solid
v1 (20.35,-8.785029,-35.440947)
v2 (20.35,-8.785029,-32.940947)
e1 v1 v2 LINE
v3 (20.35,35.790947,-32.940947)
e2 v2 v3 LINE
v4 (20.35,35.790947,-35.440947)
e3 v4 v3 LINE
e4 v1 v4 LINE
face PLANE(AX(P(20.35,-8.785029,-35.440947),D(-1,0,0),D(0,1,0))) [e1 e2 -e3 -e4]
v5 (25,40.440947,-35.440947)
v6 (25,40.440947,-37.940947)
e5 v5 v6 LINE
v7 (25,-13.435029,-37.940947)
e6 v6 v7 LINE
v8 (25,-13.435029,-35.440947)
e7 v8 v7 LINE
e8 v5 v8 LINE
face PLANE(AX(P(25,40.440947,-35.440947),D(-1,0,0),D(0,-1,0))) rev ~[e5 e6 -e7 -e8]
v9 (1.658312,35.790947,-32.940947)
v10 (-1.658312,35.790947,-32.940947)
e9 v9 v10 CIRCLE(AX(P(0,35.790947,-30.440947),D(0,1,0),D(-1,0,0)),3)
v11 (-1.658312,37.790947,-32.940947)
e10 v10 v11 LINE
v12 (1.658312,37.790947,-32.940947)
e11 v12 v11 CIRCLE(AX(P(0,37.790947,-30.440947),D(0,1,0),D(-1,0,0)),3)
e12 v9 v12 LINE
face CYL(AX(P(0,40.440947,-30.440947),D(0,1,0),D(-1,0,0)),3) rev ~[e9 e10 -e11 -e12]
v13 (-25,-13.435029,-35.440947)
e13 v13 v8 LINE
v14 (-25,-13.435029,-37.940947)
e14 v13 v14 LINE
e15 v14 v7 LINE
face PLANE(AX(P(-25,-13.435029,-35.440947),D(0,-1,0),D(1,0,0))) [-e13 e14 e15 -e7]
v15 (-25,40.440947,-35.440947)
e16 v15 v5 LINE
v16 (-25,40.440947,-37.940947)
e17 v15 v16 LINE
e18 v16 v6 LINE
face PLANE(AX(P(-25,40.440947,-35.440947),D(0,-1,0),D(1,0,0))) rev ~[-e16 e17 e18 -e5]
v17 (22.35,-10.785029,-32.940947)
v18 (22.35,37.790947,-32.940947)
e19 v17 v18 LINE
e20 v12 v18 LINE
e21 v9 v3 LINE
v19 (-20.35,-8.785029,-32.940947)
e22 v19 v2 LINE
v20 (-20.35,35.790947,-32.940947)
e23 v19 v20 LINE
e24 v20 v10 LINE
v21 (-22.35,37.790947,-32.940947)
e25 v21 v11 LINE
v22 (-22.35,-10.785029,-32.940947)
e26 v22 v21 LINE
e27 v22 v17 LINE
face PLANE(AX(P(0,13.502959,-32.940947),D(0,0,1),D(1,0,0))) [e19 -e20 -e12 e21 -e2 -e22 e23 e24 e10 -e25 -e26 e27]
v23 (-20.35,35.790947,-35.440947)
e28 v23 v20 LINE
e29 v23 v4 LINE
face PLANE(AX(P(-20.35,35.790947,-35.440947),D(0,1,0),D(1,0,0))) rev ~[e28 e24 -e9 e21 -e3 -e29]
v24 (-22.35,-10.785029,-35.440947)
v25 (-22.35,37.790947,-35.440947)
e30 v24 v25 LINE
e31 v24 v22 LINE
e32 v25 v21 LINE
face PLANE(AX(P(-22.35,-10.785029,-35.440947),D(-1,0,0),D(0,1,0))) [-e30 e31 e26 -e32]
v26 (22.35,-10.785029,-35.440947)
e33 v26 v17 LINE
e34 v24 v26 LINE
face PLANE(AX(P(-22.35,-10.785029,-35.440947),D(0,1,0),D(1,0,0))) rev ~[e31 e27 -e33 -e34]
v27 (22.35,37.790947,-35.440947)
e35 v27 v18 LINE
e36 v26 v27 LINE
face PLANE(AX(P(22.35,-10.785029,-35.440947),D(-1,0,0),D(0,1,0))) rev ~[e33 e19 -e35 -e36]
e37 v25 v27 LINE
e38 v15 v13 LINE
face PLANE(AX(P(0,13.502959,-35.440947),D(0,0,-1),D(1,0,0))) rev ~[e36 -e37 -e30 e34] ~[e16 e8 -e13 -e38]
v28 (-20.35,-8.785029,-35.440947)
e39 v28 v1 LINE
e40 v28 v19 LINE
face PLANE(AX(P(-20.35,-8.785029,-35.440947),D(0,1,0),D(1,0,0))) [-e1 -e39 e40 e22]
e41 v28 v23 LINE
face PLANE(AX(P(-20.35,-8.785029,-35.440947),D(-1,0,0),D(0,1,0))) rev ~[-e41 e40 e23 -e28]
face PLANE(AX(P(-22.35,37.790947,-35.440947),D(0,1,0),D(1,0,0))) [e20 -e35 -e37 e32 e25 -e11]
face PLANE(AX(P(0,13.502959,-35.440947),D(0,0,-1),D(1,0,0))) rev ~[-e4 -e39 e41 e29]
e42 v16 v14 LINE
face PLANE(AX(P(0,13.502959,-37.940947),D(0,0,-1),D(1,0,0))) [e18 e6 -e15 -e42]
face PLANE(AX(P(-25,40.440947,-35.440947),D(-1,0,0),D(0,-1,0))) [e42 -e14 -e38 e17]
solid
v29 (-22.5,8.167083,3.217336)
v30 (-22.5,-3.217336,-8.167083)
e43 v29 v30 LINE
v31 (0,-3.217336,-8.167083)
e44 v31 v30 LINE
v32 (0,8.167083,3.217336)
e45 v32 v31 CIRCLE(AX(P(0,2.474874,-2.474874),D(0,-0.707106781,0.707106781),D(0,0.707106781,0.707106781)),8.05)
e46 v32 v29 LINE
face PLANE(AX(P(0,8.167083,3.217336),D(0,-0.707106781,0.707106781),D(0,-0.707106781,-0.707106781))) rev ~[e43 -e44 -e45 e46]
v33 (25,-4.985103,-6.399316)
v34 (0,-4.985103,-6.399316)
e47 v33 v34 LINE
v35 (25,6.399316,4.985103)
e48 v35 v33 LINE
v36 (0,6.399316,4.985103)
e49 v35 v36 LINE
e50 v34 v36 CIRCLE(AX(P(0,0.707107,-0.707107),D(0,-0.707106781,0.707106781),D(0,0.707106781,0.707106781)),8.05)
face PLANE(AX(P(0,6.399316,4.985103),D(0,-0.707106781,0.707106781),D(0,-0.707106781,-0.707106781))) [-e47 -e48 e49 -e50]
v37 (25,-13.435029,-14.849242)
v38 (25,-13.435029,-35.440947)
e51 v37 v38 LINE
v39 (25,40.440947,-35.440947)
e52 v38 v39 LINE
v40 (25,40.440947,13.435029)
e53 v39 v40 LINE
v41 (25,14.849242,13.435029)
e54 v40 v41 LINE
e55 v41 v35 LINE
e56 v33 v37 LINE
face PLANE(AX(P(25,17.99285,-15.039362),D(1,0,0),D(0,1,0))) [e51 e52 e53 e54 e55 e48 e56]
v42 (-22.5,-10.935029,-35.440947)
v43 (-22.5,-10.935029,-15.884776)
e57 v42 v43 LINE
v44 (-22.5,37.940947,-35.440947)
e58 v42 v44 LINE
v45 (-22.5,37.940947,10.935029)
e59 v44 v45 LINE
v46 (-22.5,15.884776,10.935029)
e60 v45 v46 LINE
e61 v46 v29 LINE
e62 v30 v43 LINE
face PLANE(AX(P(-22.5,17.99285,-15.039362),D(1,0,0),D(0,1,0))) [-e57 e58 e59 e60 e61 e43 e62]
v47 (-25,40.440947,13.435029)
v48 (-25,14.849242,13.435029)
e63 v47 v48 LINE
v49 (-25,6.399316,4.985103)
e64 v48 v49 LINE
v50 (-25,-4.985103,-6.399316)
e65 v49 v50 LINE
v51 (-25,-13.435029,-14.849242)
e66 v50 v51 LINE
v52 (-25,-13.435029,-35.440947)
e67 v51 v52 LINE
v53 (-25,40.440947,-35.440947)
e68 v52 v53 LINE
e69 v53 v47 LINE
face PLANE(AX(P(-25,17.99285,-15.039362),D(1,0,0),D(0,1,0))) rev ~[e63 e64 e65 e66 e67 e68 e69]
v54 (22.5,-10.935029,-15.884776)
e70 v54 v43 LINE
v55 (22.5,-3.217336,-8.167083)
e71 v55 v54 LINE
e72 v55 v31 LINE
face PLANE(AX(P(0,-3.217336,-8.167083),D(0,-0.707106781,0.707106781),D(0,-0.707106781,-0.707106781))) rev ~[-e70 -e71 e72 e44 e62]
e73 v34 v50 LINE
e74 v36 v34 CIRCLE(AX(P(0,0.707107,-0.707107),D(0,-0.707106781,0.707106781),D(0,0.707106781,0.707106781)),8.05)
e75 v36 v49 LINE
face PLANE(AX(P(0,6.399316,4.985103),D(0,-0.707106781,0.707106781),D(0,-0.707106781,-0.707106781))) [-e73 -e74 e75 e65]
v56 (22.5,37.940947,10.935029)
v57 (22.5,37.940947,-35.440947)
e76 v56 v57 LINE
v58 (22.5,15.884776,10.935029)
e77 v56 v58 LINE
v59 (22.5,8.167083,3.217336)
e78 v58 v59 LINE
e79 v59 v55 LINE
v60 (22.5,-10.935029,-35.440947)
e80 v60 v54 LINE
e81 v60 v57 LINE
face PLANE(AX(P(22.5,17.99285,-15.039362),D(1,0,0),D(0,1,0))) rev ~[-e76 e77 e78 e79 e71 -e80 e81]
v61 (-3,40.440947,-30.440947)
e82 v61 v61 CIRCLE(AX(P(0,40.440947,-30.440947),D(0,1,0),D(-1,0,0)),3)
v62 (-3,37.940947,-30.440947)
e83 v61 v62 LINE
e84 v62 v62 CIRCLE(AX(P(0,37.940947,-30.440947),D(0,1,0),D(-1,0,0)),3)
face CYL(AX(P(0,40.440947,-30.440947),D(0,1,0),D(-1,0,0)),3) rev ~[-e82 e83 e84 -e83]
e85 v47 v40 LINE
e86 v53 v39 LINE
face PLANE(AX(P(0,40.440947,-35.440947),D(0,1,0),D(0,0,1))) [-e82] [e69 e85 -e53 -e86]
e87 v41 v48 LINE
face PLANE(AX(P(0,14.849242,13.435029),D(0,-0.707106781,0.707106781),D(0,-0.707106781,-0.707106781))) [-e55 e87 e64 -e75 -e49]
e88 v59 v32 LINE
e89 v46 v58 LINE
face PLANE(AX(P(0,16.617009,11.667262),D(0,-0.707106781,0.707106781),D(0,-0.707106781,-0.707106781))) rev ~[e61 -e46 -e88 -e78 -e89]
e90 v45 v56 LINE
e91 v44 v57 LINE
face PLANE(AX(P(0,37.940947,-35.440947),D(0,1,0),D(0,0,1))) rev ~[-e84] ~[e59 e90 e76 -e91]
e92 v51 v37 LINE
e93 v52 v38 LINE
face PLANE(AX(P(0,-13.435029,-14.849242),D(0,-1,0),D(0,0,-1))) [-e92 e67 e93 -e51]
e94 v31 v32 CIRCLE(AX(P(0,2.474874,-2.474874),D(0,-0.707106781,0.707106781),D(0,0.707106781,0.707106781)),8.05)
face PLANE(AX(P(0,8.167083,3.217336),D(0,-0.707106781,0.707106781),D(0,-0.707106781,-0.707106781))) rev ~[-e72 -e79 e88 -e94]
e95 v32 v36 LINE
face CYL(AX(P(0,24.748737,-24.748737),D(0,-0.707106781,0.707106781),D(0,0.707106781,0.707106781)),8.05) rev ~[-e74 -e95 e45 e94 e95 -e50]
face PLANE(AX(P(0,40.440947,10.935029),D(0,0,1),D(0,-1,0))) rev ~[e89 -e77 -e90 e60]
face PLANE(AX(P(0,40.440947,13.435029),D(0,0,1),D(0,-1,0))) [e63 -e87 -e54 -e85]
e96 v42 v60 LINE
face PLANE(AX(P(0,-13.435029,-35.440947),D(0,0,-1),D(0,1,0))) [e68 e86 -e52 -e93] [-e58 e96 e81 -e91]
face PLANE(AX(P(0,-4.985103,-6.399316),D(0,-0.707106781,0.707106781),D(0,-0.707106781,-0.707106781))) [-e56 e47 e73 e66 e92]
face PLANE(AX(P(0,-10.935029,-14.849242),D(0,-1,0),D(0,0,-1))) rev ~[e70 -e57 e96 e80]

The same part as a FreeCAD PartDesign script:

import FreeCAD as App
import Part
import Sketcher

V = App.Vector
Q = App.Units.Quantity


def faces_at(feature, points):
    """Names of the faces that lie closest to the given points."""
    faces = feature.Shape.Faces
    near = lambda p: min(range(len(faces)), key=lambda i: faces[i].distToShape(Part.Vertex(*p))[0])
    return sorted({f"Face{near(p) + 1}" for p in points})


def add_polygon(sketch, points):
    """Adds a closed chain of lines whose ends are joined by coincident constraints."""
    first, n = sketch.GeometryCount, len(points)
    for a, b in zip(points, points[1:] + points[:1]):
        sketch.addGeometry(Part.LineSegment(App.Vector(*a, 0), App.Vector(*b, 0)), False)
    for i in range(n):
        sketch.addConstraint(Sketcher.Constraint("Coincident", first + i, 2, first + (i + 1) % n, 1))

doc = App.newDocument("Part")
params = doc.addObject("Spreadsheet::Sheet", "Params")
for row, (alias, value) in enumerate([
    ("sketch1_length", "35 mm"),
    ("sketch1_length2", "8.05 mm"),
    ("revolution_angle", "360 deg"),
    ("sketch2_length", "16.1 mm"),
    ("sketch2_length2", "11.95 mm"),
    ("pad1_length", "50 mm"),
    ("thickness_wall", "2.5 mm"),
    ("sketch3_width", "50 mm"),
    ("pad2_length", "2.5 mm"),
    ("sketch4_width", "44.7 mm"),
    ("sketch4_width2", "40.7 mm"),
    ("pad3_length", "2.5 mm"),
    ("sketch5_diameter", "6 mm"),
    ("pad4_length", "25 mm"),
], start=1):
    params.set(f"A{row}", alias)
    params.set(f"B{row}", "=" + value)
    params.setAlias(f"B{row}", alias)

body = doc.addObject("PartDesign::Body", "Body")

sketch1 = body.newObject("Sketcher::SketchObject", "Sketch")
sketch1.AttachmentSupport = (doc.getObject("YZ_Plane"), [""])
sketch1.MapMode = "FlatFace"
add_polygon(sketch1, [(5.69221, 5.69221), (0, 0), (24.748737, -24.748737), (30.440947, -19.056528)])
sketch1.addGeometry(Part.LineSegment(V(24.748737, -24.748737, 0), V(0, 0, 0)), True)
sketch1.addConstraint([
    Sketcher.Constraint("Coincident", 0, 2, -1, 1),
    Sketcher.Constraint("Coincident", 4, 2, -1, 1),
    Sketcher.Constraint("Coincident", 4, 1, 1, 2),
    Sketcher.Constraint("Perpendicular", 0, 1),
    Sketcher.Constraint("Perpendicular", 1, 2),
    Sketcher.Constraint("Perpendicular", 2, 3),
    Sketcher.Constraint("Angle", 0, Q("-135 deg")),
    Sketcher.Constraint("Distance", 1, Q("35 mm")),
    Sketcher.Constraint("Distance", 0, Q("8.05 mm")),
])
sketch1.setExpression("Constraints[11]", "Params.sketch1_length")
sketch1.setExpression("Constraints[12]", "Params.sketch1_length2")
revolution = body.newObject("PartDesign::Revolution", "Revolution")
revolution.Profile = sketch1
revolution.ReferenceAxis = (sketch1, ["Axis0"])
revolution.setExpression("Angle", "Params.revolution_angle")
body2 = doc.addObject("PartDesign::Body", "Body001")

sketch2 = body2.newObject("Sketcher::SketchObject", "Sketch001")
sketch2.AttachmentSupport = (doc.getObject("YZ_Plane001"), [""])
sketch2.MapMode = "FlatFace"
add_polygon(sketch2, [(-4.985103, -6.399316), (-13.435029, -14.849242), (-13.435029, -35.440947), (40.440947, -35.440947), (40.440947, 13.435029), (14.849242, 13.435029), (6.399316, 4.985103)])
sketch2.addConstraint([
    Sketcher.Constraint("Vertical", 1),
    Sketcher.Constraint("Horizontal", 2),
    Sketcher.Constraint("Vertical", 3),
    Sketcher.Constraint("Horizontal", 4),
    Sketcher.Constraint("Parallel", 0, 5),
    Sketcher.Constraint("Parallel", 5, 6),
    Sketcher.Constraint("Equal", 0, 5),
    Sketcher.Constraint("Angle", 0, Q("-135 deg")),
    Sketcher.Constraint("Distance", 6, Q("16.1 mm")),
    Sketcher.Constraint("Distance", 0, Q("11.95 mm")),
    Sketcher.Constraint("DistanceX", 2, 1, 2, 2, Q("53.875976 mm")),
    Sketcher.Constraint("DistanceY", 1, 2, 1, 1, Q("20.591705 mm")),
    Sketcher.Constraint("DistanceX", 0, 2, -1, 1, Q("13.435029 mm")),
    Sketcher.Constraint("DistanceY", -1, 1, 3, 2, Q("13.435029 mm")),
])
sketch2.setExpression("Constraints[15]", "Params.sketch2_length")
sketch2.setExpression("Constraints[16]", "Params.sketch2_length2")
pad1 = body2.newObject("PartDesign::Pad", "Pad")
pad1.Profile = sketch2
pad1.setExpression("Length", "Params.pad1_length")
pad1.Midplane = True
doc.recompute()

thickness = body2.newObject("PartDesign::Thickness", "Thickness")
thickness.Base = (pad1, faces_at(pad1, [(0, 13.503, -35.441)]))
thickness.setExpression("Value", "Params.thickness_wall")
thickness.Reversed = True
thickness.Join = "Arc"
doc.recompute()

boolean = body2.newObject("PartDesign::Boolean", "Boolean")
boolean.Type = "Cut"
boolean.addObjects([body])
body3 = doc.addObject("PartDesign::Body", "Body002")

sketch3 = body3.newObject("Sketcher::SketchObject", "Sketch002")
sketch3.AttachmentSupport = (doc.getObject("XY_Plane002"), [""])
sketch3.MapMode = "FlatFace"
sketch3.AttachmentOffset = App.Placement(V(0, 0, -35.440947), App.Rotation())
add_polygon(sketch3, [(-25, -13.435029), (-25, 40.440947), (25, 40.440947), (25, -13.435029)])
sketch3.addConstraint([
    Sketcher.Constraint("Vertical", 0),
    Sketcher.Constraint("Horizontal", 1),
    Sketcher.Constraint("Vertical", 2),
    Sketcher.Constraint("Horizontal", 3),
    Sketcher.Constraint("DistanceX", 1, 1, 1, 2, Q("50 mm")),
    Sketcher.Constraint("DistanceX", 0, 2, -1, 1, Q("25 mm")),
    Sketcher.Constraint("DistanceY", 0, 1, 0, 2, Q("53.875976 mm")),
    Sketcher.Constraint("DistanceY", 2, 2, -1, 1, Q("13.435029 mm")),
])
sketch3.setExpression("Constraints[8]", "Params.sketch3_width")
pad2 = body3.newObject("PartDesign::Pad", "Pad001")
pad2.Profile = sketch3
pad2.setExpression("Length", "Params.pad2_length")
pad2.Reversed = True

sketch4 = body3.newObject("Sketcher::SketchObject", "Sketch003")
sketch4.AttachmentSupport = (doc.getObject("XY_Plane002"), [""])
sketch4.MapMode = "FlatFace"
sketch4.AttachmentOffset = App.Placement(V(0, 0, -35.440947), App.Rotation())
add_polygon(sketch4, [(-22.35, 37.790947), (-22.35, -10.785029), (22.35, -10.785029), (22.35, 37.790947)])
add_polygon(sketch4, [(20.35, -8.785029), (-20.35, -8.785029), (-20.35, 35.790947), (20.35, 35.790947)])
sketch4.addConstraint([
    Sketcher.Constraint("Vertical", 0),
    Sketcher.Constraint("Horizontal", 1),
    Sketcher.Constraint("Vertical", 2),
    Sketcher.Constraint("Horizontal", 3),
    Sketcher.Constraint("Horizontal", 4),
    Sketcher.Constraint("Vertical", 5),
    Sketcher.Constraint("Horizontal", 6),
    Sketcher.Constraint("Vertical", 7),
    Sketcher.Constraint("DistanceX", 1, 1, 1, 2, Q("44.7 mm")),
    Sketcher.Constraint("DistanceX", 4, 2, 4, 1, Q("40.7 mm")),
    Sketcher.Constraint("DistanceX", 0, 2, 4, 2, Q("2 mm")),
    Sketcher.Constraint("DistanceY", 0, 2, 4, 2, Q("2 mm")),
    Sketcher.Constraint("DistanceY", 5, 2, 3, 2, Q("2 mm")),
    Sketcher.Constraint("DistanceX", 0, 2, -1, 1, Q("22.35 mm")),
    Sketcher.Constraint("DistanceY", 0, 2, 0, 1, Q("48.575976 mm")),
    Sketcher.Constraint("DistanceY", 0, 2, -1, 1, Q("10.785029 mm")),
])
sketch4.setExpression("Constraints[16]", "Params.sketch4_width")
sketch4.setExpression("Constraints[17]", "Params.sketch4_width2")
pad3 = body3.newObject("PartDesign::Pad", "Pad002")
pad3.Profile = sketch4
pad3.setExpression("Length", "Params.pad3_length")
body4 = doc.addObject("PartDesign::Body", "Body003")

sketch5 = body4.newObject("Sketcher::SketchObject", "Sketch004")
sketch5.AttachmentSupport = (doc.getObject("XZ_Plane003"), [""])
sketch5.MapMode = "FlatFace"
sketch5.AttachmentOffset = App.Placement(V(0, 0, -40.440947), App.Rotation())
sketch5.addGeometry(Part.Circle(V(0, -30.440947, 0), V(0, 0, 1), 3), False)
sketch5.addConstraint([
    Sketcher.Constraint("PointOnObject", 0, 3, -2),
    Sketcher.Constraint("Diameter", 0, Q("6 mm")),
    Sketcher.Constraint("DistanceY", 0, 3, -1, 1, Q("30.440947 mm")),
])
sketch5.setExpression("Constraints[1]", "Params.sketch5_diameter")
pad4 = body4.newObject("PartDesign::Pad", "Pad003")
pad4.Profile = sketch5
pad4.setExpression("Length", "Params.pad4_length")
doc.recompute()

body5 = doc.addObject("PartDesign::Body", "Body004")
body5.BaseFeature = body4
boolean2 = body2.newObject("PartDesign::Boolean", "Boolean001")
boolean2.Type = "Cut"
boolean2.addObjects([body5])
doc.recompute()

boolean3 = body3.newObject("PartDesign::Boolean", "Boolean002")
boolean3.Type = "Cut"
boolean3.addObjects([body4])

doc.recompute()
